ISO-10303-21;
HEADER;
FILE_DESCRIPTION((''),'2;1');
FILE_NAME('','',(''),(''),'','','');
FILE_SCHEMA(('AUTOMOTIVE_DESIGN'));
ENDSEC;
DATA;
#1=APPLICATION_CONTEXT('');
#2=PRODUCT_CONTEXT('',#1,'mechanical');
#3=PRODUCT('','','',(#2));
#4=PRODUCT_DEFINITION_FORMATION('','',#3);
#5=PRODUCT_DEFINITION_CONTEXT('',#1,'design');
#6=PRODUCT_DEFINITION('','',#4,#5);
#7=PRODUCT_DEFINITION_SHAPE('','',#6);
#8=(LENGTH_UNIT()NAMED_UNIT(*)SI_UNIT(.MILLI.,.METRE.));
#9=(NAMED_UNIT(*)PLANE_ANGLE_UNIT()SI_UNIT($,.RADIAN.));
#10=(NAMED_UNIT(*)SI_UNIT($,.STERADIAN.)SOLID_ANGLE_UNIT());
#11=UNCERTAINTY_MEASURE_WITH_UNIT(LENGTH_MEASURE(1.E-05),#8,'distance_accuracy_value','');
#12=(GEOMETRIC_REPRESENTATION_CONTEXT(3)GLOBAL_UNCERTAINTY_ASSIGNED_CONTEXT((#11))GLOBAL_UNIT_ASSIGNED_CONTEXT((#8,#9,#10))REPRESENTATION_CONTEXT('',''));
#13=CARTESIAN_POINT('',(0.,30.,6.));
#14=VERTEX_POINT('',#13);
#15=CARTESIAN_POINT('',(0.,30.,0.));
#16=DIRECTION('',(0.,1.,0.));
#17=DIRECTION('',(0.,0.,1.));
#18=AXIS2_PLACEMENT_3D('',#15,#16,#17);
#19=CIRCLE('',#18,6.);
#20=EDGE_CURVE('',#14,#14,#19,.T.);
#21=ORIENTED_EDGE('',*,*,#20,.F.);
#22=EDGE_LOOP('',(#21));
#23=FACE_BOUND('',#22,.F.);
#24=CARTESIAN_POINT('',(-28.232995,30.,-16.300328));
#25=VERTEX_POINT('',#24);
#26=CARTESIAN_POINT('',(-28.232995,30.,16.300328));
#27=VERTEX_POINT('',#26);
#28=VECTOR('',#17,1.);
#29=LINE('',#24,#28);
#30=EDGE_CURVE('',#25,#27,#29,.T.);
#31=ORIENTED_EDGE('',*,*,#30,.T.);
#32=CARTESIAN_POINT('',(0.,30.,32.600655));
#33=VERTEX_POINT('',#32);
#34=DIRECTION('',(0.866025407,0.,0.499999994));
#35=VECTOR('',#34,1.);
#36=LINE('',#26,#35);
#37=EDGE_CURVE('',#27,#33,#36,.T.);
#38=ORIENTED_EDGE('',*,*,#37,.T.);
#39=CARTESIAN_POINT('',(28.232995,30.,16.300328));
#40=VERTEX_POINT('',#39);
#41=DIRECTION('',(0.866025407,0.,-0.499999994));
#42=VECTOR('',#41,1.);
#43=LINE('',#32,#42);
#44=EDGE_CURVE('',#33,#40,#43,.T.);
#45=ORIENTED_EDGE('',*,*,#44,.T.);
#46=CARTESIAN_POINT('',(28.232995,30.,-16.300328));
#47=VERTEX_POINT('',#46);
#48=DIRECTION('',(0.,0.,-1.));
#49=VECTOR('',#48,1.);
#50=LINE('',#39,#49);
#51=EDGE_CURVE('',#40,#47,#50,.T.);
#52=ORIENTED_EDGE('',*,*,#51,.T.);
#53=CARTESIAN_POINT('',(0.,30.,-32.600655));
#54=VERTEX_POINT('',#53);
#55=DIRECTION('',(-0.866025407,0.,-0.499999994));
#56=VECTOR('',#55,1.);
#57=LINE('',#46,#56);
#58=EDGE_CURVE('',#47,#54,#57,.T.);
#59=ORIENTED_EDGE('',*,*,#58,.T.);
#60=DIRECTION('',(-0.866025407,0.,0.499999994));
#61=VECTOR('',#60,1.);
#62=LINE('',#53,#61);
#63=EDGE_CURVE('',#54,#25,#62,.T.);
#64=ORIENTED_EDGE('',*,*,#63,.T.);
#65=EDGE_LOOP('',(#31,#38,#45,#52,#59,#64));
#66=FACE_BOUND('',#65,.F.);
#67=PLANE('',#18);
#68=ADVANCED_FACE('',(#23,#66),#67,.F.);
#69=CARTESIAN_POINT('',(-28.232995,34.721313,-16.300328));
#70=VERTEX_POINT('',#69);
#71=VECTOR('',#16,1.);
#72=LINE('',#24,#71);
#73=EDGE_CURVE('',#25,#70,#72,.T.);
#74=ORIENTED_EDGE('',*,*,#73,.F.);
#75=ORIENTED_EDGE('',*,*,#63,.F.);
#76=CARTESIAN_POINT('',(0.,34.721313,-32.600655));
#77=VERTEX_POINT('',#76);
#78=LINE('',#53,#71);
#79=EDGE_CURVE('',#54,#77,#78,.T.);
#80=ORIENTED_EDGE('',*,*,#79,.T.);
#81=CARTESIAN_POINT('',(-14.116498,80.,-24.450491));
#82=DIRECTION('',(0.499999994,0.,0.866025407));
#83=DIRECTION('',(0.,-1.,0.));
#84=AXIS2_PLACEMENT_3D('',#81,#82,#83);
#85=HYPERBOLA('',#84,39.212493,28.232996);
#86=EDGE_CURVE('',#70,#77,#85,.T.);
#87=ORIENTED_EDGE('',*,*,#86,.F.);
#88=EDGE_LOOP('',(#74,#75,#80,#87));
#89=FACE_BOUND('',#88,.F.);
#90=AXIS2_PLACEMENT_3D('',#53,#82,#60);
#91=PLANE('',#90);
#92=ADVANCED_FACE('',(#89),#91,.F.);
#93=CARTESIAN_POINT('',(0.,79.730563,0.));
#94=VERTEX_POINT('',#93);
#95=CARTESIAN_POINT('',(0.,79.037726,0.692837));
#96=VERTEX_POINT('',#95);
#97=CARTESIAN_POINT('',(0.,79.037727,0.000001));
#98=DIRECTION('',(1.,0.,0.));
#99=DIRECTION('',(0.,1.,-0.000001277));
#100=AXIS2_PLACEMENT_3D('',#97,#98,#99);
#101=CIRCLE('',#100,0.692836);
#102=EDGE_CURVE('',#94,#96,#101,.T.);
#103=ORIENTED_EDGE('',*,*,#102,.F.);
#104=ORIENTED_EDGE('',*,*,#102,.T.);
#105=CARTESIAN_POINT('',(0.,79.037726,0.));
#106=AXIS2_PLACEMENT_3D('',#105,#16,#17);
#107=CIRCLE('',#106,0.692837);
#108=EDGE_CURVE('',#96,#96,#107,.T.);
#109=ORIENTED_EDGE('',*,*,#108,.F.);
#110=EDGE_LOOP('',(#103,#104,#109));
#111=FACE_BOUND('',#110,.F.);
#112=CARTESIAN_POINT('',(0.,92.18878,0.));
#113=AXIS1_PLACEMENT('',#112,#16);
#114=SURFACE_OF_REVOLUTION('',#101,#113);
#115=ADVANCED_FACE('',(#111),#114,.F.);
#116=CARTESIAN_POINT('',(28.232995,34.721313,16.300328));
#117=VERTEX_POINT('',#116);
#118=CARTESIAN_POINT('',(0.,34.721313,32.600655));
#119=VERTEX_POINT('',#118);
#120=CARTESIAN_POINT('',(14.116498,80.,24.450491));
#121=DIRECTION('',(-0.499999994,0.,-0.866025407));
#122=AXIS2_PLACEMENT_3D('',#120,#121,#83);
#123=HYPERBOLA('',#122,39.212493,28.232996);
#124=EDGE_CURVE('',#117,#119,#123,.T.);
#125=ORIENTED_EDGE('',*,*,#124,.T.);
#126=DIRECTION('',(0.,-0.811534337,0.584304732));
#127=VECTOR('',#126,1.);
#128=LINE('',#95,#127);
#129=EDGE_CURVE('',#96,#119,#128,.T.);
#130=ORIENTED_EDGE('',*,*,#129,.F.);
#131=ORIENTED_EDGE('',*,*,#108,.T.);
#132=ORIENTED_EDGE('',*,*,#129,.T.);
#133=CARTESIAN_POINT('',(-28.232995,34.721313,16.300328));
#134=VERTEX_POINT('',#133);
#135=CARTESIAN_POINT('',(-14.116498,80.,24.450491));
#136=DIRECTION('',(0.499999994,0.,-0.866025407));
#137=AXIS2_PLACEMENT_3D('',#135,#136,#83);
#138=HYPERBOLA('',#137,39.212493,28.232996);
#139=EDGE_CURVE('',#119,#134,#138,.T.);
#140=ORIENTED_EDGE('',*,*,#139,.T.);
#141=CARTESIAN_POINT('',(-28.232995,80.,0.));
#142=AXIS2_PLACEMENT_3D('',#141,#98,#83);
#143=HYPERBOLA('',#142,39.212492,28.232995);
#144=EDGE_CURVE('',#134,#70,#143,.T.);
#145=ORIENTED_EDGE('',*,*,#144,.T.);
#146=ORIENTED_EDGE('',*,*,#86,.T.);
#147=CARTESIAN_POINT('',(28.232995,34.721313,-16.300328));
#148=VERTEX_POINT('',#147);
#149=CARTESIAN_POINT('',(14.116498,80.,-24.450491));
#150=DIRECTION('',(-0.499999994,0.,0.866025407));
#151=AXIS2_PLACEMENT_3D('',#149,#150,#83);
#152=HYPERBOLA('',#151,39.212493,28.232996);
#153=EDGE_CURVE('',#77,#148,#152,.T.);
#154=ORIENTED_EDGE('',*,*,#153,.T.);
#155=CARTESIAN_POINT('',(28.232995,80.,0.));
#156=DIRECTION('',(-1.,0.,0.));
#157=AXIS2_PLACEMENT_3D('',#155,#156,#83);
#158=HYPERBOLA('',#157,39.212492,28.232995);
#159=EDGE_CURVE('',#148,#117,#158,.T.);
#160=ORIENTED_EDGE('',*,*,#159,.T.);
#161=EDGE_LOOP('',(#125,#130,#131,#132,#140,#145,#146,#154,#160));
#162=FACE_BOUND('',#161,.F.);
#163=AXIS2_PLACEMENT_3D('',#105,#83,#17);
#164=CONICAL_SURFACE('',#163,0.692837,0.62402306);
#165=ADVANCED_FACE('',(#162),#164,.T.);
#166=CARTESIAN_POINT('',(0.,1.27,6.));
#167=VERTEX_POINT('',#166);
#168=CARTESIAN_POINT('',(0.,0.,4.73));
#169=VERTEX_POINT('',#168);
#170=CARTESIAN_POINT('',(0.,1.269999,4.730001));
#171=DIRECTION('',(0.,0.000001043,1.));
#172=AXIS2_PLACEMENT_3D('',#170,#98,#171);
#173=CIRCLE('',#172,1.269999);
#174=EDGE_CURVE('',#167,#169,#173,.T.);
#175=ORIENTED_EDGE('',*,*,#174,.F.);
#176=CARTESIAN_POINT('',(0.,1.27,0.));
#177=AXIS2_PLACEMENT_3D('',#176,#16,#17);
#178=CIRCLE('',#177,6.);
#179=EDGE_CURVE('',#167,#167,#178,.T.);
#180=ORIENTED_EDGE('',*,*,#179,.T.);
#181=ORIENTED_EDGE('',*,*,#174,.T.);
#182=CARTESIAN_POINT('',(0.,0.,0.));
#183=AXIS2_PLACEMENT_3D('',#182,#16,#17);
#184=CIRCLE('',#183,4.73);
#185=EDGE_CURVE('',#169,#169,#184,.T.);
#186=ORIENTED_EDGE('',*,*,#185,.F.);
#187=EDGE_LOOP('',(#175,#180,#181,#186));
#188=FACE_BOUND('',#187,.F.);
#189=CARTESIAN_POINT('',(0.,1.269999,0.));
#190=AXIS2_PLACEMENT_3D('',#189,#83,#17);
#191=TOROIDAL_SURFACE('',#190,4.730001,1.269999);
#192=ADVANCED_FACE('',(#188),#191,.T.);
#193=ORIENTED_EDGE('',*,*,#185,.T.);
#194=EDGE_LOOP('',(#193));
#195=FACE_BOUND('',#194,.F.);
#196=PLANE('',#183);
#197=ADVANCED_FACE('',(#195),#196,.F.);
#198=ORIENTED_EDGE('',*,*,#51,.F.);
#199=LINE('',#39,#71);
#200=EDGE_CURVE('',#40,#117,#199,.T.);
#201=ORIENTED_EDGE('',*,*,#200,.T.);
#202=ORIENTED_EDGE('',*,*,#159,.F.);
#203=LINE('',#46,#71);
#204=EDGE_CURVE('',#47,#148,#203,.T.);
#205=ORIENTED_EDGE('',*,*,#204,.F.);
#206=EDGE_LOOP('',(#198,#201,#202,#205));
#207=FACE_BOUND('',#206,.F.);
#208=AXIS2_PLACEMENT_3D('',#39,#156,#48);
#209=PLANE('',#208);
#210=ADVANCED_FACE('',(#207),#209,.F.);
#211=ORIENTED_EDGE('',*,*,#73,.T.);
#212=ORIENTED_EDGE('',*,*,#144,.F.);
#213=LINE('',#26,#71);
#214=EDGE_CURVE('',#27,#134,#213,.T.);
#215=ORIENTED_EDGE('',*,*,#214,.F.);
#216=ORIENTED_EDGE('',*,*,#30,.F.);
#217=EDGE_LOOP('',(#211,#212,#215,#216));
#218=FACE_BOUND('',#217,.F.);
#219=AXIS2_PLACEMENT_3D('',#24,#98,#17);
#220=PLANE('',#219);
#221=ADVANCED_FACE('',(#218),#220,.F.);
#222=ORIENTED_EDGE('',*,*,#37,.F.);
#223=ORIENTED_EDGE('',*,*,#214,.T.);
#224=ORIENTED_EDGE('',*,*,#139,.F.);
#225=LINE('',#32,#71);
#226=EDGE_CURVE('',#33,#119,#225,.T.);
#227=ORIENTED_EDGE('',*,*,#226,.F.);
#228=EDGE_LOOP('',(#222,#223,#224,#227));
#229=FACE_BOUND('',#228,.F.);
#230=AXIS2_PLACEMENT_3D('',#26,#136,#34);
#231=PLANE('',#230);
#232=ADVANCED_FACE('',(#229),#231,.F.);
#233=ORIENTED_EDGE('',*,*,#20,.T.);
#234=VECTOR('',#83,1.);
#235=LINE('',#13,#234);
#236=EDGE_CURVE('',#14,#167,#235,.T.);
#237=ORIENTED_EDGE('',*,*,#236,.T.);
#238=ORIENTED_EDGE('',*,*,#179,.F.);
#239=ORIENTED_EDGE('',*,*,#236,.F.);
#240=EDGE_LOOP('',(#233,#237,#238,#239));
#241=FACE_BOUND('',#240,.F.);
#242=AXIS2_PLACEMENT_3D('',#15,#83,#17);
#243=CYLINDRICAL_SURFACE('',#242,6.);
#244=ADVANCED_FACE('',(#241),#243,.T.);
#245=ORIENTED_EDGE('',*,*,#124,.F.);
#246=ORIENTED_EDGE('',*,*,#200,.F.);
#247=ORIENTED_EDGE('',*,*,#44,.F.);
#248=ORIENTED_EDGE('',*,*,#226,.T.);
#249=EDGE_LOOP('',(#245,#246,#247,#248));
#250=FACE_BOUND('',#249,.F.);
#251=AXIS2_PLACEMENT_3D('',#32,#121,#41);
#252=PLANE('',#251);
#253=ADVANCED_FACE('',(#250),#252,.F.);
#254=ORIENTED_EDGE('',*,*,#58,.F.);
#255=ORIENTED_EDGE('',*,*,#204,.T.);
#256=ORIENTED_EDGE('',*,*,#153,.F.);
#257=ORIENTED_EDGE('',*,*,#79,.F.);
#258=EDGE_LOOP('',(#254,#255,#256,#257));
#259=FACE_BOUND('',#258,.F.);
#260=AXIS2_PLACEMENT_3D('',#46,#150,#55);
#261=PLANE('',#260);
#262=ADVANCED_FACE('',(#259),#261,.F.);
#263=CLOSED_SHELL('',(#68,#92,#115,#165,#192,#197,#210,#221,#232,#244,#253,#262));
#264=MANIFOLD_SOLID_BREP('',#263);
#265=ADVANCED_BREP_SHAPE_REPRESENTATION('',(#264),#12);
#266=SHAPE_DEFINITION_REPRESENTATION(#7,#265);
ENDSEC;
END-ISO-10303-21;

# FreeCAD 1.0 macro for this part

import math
import FreeCAD as App
import Part
import Sketcher
from FreeCAD import Vector
Q = App.Units.Quantity

doc = App.newDocument("Part")
params = doc.addObject("Spreadsheet::Sheet", "Params")
for row, (alias, value) in enumerate([
    ("sketch1_radius", "0.05 in"),
    ("sketch1_radius2", "0.0499999 in"),
    ("revolution_angle", "360 deg"),
    ("pocket1_length", "1 in"),
], start=1):
    params.set(f"A{row}", alias)
    params.set(f"B{row}", "=" + value)
    params.setAlias(f"B{row}", alias)

body = doc.addObject("PartDesign::Body", "Body")

# Sketch on YZ plane
sketch1 = body.newObject("Sketcher::SketchObject", "Sketch")
sketch1.AttachmentSupport = (doc.getObject("YZ_Plane"), [""])
sketch1.MapMode = "FlatFace"
sketch1.addGeometry([
    Part.LineSegment(Vector(0, 4.73, 0), Vector(0, 0, 0)),  # 0
    Part.LineSegment(Vector(0, 0, 0), Vector(79.730563, 0, 0)),  # 1
    Part.ArcOfCircle(Part.Circle(Vector(79.037727, 0.000001, 0), Vector(0, 0, 1), 0.692836), math.radians(-0.000073), math.radians(90.000073)),  # 2
    Part.LineSegment(Vector(79.037726, 0.692837, 0), Vector(32.012067, 34.551312, 0)),  # 3
    Part.ArcOfCircle(Part.Circle(Vector(31.27, 33.520664, 0), Vector(0, 0, 1), 1.27), math.radians(54.246094), math.radians(180.000036)),  # 4
    Part.LineSegment(Vector(30, 33.520663, 0), Vector(30, 6, 0)),  # 5
    Part.LineSegment(Vector(30, 6, 0), Vector(1.27, 6, 0)),  # 6
    Part.ArcOfCircle(Part.Circle(Vector(1.269999, 4.730001, 0), Vector(0, 0, 1), 1.269999), math.radians(89.99994), math.radians(180.00006)),  # 7
], False)
sketch1.addConstraint([
    Sketcher.Constraint("Coincident", 0, 2, 1, 1),
    Sketcher.Constraint("Coincident", 1, 2, 2, 1),
    Sketcher.Constraint("Coincident", 2, 2, 3, 1),
    Sketcher.Constraint("Coincident", 3, 2, 4, 1),
    Sketcher.Constraint("Coincident", 4, 2, 5, 1),
    Sketcher.Constraint("Coincident", 5, 2, 6, 1),
    Sketcher.Constraint("Coincident", 6, 2, 7, 1),
    Sketcher.Constraint("Coincident", 7, 2, 0, 1),
    Sketcher.Constraint("Vertical", 0),
    Sketcher.Constraint("Horizontal", 1),
    Sketcher.Constraint("Vertical", 5),
    Sketcher.Constraint("Horizontal", 6),
    Sketcher.Constraint("Coincident", 0, 2, -1, 1),
    Sketcher.Constraint("PointOnObject", 2, 3, -1),
    Sketcher.Constraint("Radius", 4, Q("0.05 in")),
    Sketcher.Constraint("Radius", 7, Q("0.0499999 in")),
    Sketcher.Constraint("DistanceX", -1, 1, 6, 2, Q("0.05 in")),
    Sketcher.Constraint("DistanceY", 7, 2, 6, 2, Q("0.05 in")),
    Sketcher.Constraint("DistanceX", 6, 2, 6, 1, Q("28.73 mm")),
    Sketcher.Constraint("DistanceY", 0, 2, 0, 1, Q("4.73 mm")),
    Sketcher.Constraint("Radius", 2, Q("0.692836 mm")),
    Sketcher.Constraint("DistanceX", 1, 1, 1, 2, Q("79.730563 mm")),
    Sketcher.Constraint("DistanceY", 5, 2, 5, 1, Q("27.520663 mm")),
    Sketcher.Constraint("DistanceY", 4, 3, 3, 2, Q("1.030648 mm")),
    Sketcher.Constraint("DistanceY", 7, 3, 3, 2, Q("29.821311 mm")),
    Sketcher.Constraint("DistanceX", 3, 2, 2, 2, Q("47.025659 mm")),
])
sketch1.setExpression("Constraints[14]", "Params.sketch1_radius")
sketch1.setExpression("Constraints[15]", "Params.sketch1_radius2")
revolution = body.newObject("PartDesign::Revolution", "Revolution")
revolution.Profile = sketch1
revolution.ReferenceAxis = (sketch1, ["H_Axis"])
revolution.setExpression("Angle", "Params.revolution_angle")

# Sketch on XZ plane
sketch2 = body.newObject("Sketcher::SketchObject", "Sketch001")
sketch2.AttachmentSupport = (doc.getObject("XZ_Plane"), [""])
sketch2.MapMode = "FlatFace"
sketch2.AttachmentOffset = App.Placement(Vector(0, 0, -30), App.Rotation())
sketch2.addGeometry([
    Part.Circle(Vector(0, 0, 0), Vector(0, 0, 1), 42),  # 0
    Part.LineSegment(Vector(-28, 16, 0), Vector(0, 33, 0)),  # 1
    Part.LineSegment(Vector(0, 33, 0), Vector(28, 16, 0)),  # 2
    Part.LineSegment(Vector(28, 16, 0), Vector(28, -16, 0)),  # 3
    Part.LineSegment(Vector(28, -16, 0), Vector(0, -33, 0)),  # 4
    Part.LineSegment(Vector(0, -33, 0), Vector(-28, -16, 0)),  # 5
    Part.LineSegment(Vector(-28, -16, 0), Vector(-28, 16, 0)),  # 6
], False)
sketch2.addConstraint([
    Sketcher.Constraint("Coincident", 1, 2, 2, 1),
    Sketcher.Constraint("Coincident", 2, 2, 3, 1),
    Sketcher.Constraint("Coincident", 3, 2, 4, 1),
    Sketcher.Constraint("Coincident", 4, 2, 5, 1),
    Sketcher.Constraint("Coincident", 5, 2, 6, 1),
    Sketcher.Constraint("Coincident", 6, 2, 1, 1),
    Sketcher.Constraint("Vertical", 3),
    Sketcher.Constraint("Vertical", 6),
    Sketcher.Constraint("Coincident", 0, 3, -1, 1),
    Sketcher.Constraint("Symmetric", 1, 2, 4, 2, -1, 1),
    Sketcher.Constraint("Symmetric", 2, 2, 5, 2, -1, 1),
    Sketcher.Constraint("PointOnObject", 1, 2, -2),
    Sketcher.Constraint("Parallel", 1, 4),
    Sketcher.Constraint("Horizontal", 3, 2, 5, 2),
    Sketcher.Constraint("Angle", 1, Q("30 deg")),
    Sketcher.Constraint("Diameter", 0, Q("84.418574 mm")),
    Sketcher.Constraint("DistanceY", 3, 2, 3, 1, Q("32.600656 mm")),
    Sketcher.Constraint("DistanceY", 4, 2, 1, 2, Q("65.20131 mm")),
])
pocket1 = body.newObject("PartDesign::Pocket", "Pocket")
pocket1.Profile = sketch2
pocket1.setExpression("Length", "Params.pocket1_length")

doc.recompute()
